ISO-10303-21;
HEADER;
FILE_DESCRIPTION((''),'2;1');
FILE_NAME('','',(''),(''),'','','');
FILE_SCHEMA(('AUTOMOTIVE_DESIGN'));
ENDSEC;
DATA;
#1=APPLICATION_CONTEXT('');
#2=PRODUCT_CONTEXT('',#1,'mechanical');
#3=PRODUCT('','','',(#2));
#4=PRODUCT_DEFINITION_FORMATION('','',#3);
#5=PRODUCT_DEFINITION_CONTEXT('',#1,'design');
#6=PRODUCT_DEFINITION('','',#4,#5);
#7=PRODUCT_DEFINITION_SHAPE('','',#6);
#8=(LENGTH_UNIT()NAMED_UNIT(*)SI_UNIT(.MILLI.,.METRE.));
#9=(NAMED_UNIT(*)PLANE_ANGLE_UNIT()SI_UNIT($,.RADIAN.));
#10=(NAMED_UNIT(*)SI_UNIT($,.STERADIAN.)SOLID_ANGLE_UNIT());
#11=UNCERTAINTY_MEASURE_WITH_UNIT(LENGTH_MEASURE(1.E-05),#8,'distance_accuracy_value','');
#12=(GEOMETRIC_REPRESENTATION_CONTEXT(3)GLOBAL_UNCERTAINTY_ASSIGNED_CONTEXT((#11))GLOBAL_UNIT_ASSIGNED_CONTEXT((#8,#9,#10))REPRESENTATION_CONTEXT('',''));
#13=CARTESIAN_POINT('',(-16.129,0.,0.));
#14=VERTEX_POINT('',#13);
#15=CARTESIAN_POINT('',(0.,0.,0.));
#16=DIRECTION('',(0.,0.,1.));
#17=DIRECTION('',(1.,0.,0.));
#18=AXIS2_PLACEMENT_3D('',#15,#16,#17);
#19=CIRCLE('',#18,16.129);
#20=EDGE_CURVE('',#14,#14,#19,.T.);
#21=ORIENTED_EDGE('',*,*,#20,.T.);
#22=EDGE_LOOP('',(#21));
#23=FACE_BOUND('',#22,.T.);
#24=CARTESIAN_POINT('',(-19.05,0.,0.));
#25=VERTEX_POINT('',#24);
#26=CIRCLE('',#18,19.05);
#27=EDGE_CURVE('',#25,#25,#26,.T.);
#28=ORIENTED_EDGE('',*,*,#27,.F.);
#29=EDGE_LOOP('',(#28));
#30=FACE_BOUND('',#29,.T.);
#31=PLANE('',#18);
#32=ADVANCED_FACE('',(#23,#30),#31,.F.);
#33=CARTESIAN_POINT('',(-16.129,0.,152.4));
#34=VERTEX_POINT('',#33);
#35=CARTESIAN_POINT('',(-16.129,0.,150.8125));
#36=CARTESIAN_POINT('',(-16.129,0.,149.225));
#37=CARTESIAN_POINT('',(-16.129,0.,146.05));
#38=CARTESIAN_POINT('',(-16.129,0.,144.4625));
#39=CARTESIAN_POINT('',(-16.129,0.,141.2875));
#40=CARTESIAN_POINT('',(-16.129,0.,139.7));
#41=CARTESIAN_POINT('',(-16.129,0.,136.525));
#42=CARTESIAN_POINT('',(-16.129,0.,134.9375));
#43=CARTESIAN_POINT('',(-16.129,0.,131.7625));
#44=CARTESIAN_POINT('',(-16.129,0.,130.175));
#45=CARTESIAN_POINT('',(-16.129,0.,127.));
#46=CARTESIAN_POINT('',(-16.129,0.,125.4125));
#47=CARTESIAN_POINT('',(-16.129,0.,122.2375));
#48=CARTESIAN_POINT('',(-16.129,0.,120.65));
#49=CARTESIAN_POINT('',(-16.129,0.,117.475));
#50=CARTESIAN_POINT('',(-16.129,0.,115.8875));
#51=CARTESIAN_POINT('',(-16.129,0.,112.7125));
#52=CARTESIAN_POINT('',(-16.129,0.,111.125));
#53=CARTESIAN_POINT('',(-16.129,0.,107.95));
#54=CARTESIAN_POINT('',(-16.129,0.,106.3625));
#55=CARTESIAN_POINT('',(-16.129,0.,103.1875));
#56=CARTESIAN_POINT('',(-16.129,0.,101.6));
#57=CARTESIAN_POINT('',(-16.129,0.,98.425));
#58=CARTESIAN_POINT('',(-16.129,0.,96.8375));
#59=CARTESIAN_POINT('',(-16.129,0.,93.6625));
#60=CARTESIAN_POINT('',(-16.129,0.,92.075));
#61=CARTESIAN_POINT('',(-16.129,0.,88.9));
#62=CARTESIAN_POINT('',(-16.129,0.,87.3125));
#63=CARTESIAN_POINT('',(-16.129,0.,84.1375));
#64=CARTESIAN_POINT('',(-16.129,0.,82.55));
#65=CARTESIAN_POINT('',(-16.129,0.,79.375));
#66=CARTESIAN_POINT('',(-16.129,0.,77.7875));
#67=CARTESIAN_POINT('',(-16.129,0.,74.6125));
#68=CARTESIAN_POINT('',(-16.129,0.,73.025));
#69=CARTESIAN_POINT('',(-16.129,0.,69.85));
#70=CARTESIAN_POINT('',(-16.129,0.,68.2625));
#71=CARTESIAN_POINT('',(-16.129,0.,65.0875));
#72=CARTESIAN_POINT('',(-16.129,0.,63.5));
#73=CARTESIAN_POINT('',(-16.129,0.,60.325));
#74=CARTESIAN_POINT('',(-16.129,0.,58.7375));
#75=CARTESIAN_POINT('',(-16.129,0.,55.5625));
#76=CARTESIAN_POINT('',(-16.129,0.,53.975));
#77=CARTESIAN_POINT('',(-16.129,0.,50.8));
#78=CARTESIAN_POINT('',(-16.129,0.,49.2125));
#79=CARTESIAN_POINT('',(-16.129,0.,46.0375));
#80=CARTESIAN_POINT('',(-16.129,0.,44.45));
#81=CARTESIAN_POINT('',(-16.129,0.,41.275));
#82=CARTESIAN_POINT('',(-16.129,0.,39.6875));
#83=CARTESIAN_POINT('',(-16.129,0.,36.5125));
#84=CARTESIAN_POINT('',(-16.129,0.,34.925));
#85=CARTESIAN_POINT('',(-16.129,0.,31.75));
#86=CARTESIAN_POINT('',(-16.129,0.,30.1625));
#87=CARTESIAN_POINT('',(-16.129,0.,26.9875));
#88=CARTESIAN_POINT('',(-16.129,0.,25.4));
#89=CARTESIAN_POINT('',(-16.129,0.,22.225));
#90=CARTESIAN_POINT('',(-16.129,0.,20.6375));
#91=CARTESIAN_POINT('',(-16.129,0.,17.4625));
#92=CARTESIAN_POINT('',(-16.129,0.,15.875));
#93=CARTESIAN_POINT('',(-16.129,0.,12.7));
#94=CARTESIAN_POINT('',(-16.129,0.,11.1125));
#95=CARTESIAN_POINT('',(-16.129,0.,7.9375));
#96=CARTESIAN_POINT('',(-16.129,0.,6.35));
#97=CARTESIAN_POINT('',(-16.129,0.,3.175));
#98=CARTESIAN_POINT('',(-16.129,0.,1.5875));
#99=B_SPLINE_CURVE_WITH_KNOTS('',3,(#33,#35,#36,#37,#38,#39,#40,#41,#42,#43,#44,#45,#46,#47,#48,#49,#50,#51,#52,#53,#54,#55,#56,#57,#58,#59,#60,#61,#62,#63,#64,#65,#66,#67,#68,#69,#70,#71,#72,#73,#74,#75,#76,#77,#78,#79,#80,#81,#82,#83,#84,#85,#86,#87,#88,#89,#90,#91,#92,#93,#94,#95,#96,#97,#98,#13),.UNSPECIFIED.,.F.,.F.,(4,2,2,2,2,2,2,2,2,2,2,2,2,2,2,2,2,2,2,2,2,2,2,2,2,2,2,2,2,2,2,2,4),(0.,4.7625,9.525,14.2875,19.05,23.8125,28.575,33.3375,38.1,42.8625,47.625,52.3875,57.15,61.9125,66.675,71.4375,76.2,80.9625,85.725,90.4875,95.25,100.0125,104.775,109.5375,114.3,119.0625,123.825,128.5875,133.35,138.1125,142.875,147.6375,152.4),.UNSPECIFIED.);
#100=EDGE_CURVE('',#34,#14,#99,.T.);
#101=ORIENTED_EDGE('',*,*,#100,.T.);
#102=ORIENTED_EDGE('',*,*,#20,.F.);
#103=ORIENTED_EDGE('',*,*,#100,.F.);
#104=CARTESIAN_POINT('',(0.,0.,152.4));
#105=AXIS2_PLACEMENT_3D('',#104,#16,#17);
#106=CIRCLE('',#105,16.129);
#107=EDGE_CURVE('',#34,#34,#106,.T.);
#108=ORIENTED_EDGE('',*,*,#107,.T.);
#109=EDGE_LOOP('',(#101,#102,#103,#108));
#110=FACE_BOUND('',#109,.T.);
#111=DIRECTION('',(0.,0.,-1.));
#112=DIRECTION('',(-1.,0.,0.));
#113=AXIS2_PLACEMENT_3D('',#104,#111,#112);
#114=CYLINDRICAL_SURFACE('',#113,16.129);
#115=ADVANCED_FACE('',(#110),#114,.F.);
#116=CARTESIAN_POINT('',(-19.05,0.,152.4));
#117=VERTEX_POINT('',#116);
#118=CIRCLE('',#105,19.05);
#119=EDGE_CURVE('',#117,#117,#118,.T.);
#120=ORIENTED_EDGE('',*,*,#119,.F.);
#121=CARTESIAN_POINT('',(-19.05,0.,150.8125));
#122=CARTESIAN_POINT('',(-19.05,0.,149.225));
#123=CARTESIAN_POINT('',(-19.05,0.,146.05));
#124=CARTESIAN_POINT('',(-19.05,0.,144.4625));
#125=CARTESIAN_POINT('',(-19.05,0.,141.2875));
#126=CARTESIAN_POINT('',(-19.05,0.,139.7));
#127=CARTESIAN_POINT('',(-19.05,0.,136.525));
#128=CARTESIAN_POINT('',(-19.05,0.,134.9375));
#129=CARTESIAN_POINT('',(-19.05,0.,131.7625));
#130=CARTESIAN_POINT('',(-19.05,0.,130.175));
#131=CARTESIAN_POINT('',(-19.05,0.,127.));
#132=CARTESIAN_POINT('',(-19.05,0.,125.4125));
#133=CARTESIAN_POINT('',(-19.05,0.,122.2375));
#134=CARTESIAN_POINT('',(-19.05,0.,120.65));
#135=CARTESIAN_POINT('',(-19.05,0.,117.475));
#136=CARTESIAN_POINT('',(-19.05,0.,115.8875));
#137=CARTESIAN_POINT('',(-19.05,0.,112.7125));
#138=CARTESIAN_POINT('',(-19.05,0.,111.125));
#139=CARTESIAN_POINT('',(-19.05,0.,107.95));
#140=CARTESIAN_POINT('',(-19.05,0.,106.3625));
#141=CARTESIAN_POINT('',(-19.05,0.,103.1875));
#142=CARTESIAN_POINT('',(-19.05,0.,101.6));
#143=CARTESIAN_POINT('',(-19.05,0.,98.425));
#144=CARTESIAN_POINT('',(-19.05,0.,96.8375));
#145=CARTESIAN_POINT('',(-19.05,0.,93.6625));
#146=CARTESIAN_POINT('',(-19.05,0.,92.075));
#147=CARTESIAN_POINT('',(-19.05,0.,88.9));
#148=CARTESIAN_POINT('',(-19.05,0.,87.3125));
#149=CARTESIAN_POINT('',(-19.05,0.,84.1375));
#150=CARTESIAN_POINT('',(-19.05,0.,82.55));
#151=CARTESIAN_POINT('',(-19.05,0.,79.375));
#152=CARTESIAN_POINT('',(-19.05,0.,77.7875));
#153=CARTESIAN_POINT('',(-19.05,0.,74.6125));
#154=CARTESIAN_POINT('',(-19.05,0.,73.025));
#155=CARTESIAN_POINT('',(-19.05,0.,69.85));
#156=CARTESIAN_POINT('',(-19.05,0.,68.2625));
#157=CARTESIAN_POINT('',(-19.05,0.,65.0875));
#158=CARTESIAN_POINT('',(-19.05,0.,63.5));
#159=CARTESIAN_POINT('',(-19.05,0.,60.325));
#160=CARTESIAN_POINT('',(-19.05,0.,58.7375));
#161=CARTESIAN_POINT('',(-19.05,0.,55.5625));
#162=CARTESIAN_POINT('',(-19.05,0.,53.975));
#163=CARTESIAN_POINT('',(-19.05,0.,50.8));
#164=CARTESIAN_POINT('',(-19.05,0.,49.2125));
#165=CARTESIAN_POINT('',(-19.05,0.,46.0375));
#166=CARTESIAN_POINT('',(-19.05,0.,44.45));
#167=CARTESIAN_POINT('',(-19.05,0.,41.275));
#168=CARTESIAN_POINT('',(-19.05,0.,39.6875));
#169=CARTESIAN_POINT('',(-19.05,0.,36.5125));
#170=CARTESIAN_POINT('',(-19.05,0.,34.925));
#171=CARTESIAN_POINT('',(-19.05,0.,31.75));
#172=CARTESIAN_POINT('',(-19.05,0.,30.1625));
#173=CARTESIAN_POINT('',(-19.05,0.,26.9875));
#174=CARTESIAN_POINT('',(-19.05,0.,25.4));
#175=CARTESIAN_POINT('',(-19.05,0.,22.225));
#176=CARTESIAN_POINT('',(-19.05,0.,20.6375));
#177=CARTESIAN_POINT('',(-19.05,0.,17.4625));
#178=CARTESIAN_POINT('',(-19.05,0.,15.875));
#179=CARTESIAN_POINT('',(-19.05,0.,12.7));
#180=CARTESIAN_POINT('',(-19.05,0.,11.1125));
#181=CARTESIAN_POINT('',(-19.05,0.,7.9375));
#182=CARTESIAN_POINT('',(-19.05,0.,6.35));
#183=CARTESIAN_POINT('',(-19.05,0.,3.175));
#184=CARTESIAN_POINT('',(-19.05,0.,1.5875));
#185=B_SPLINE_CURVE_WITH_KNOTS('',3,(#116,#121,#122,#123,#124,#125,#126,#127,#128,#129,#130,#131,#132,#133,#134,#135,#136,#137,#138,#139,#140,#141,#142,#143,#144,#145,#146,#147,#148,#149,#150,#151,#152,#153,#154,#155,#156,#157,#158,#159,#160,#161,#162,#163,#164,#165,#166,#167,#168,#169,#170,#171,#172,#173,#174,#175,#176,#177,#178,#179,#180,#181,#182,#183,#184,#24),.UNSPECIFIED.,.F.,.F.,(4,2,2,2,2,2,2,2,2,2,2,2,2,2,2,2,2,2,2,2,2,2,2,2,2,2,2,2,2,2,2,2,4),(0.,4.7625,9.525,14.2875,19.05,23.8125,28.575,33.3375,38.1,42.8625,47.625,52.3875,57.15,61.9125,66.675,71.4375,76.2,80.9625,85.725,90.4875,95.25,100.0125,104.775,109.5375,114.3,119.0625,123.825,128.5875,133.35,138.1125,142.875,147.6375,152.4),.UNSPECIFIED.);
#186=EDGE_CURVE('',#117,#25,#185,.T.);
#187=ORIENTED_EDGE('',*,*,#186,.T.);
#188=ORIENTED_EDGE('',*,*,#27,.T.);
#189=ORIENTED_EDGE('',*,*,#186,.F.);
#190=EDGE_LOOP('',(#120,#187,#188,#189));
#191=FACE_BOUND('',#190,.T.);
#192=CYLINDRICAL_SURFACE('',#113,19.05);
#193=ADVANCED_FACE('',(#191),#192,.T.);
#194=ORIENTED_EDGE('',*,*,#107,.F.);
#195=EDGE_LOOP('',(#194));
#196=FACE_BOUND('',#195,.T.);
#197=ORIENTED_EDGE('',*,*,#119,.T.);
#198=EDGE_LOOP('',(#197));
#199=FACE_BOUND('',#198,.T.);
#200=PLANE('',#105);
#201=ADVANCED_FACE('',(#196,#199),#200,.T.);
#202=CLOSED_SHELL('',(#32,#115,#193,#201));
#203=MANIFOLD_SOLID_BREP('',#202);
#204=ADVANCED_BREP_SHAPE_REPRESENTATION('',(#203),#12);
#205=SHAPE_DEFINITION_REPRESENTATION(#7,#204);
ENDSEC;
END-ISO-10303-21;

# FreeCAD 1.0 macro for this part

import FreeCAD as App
import Part
import Sketcher

V = App.Vector
Q = App.Units.Quantity

doc = App.newDocument("Part")
body = doc.addObject("PartDesign::Body", "Body")

sketch1 = body.newObject("Sketcher::SketchObject", "Sketch")
sketch1.AttachmentSupport = (doc.getObject("XY_Plane"), [""])
sketch1.MapMode = "FlatFace"
sketch1.addGeometry(Part.Circle(V(0, 0, 0), V(0, 0, 1), 19), False)
sketch1.addGeometry(Part.Circle(V(0, 0, 0), V(0, 0, 1), 16), False)
sketch1.addConstraint(Sketcher.Constraint("Coincident", 0, 3, -1, 1))
sketch1.addConstraint(Sketcher.Constraint("Coincident", 1, 3, -1, 1))
sketch1.addConstraint(Sketcher.Constraint("Diameter", 0, Q("1.5 in")))
sketch1.addConstraint(Sketcher.Constraint("Diameter", 1, Q("1.27 in")))
pad1 = body.newObject("PartDesign::Pad", "Pad")
pad1.Profile = sketch1
pad1.Length = Q("6 in")

doc.recompute()
